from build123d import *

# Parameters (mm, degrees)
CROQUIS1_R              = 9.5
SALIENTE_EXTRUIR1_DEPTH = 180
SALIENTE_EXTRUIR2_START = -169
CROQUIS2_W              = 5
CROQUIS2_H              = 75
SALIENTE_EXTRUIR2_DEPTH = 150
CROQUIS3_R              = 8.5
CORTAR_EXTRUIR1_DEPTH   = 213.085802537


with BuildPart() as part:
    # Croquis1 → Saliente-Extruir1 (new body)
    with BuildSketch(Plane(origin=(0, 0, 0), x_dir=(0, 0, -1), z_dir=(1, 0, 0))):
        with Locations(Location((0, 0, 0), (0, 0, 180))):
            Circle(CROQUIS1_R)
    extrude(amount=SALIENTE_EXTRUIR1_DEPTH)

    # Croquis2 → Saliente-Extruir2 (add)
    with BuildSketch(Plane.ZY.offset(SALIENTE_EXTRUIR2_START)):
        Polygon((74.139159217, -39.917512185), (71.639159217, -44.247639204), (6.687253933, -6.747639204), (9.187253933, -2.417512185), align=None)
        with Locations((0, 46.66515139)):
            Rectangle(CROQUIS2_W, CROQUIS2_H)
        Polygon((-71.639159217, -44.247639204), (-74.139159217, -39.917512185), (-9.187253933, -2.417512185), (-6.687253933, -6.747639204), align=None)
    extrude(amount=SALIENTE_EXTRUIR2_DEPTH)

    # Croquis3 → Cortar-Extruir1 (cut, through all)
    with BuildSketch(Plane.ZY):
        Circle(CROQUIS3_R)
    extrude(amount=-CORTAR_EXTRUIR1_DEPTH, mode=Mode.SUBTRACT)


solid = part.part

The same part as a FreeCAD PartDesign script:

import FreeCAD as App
import Part
import Sketcher
Q = App.Units.Quantity

doc = App.newDocument("Part")
body = doc.addObject("PartDesign::Body", "Body")

sketch1 = doc.addObject("Sketcher::SketchObject", "Sketch")
body.addObject(sketch1)
sketch1.AttachmentSupport = (doc.YZ_Plane, [""])
sketch1.MapMode = "FlatFace"
sketch1.addGeometry(Part.Circle(App.Vector(0, 0, 0), App.Vector(0, 0, 1), 10), False)
sketch1.addConstraint([
    Sketcher.Constraint("Coincident", 0, 3, -1, 1),
    Sketcher.Constraint("Diameter", 0, Q("19 mm")),
])
pad1 = doc.addObject("PartDesign::Pad", "Pad")
body.addObject(pad1)
pad1.Profile = sketch1
pad1.Length = 180

sketch2 = doc.addObject("Sketcher::SketchObject", "Sketch001")
body.addObject(sketch2)
sketch2.AttachmentSupport = (doc.YZ_Plane, [""])
sketch2.MapMode = "FlatFace"
sketch2.AttachmentOffset = App.Placement(App.Vector(0, 0, 169), App.Rotation())
sketch2.addGeometry([
    Part.LineSegment(App.Vector(-44, 72, 0), App.Vector(-40, 74, 0)),
    Part.LineSegment(App.Vector(-40, 74, 0), App.Vector(-2, 9, 0)),
    Part.LineSegment(App.Vector(-2, 9, 0), App.Vector(-7, 7, 0)),
    Part.LineSegment(App.Vector(-7, 7, 0), App.Vector(-44, 72, 0)),
    Part.LineSegment(App.Vector(84, -2, 0), App.Vector(9, -2, 0)),
    Part.LineSegment(App.Vector(9, -2, 0), App.Vector(9, 2, 0)),
    Part.LineSegment(App.Vector(9, 2, 0), App.Vector(84, 2, 0)),
    Part.LineSegment(App.Vector(84, 2, 0), App.Vector(84, -2, 0)),
    Part.LineSegment(App.Vector(-40, -74, 0), App.Vector(-44, -72, 0)),
    Part.LineSegment(App.Vector(-44, -72, 0), App.Vector(-7, -7, 0)),
    Part.LineSegment(App.Vector(-7, -7, 0), App.Vector(-2, -9, 0)),
    Part.LineSegment(App.Vector(-2, -9, 0), App.Vector(-40, -74, 0)),
], False)
sketch2.addConstraint([
    Sketcher.Constraint("Coincident", 0, 2, 1, 1),
    Sketcher.Constraint("Coincident", 1, 2, 2, 1),
    Sketcher.Constraint("Coincident", 2, 2, 3, 1),
    Sketcher.Constraint("Coincident", 3, 2, 0, 1),
    Sketcher.Constraint("Coincident", 4, 2, 5, 1),
    Sketcher.Constraint("Coincident", 5, 2, 6, 1),
    Sketcher.Constraint("Coincident", 6, 2, 7, 1),
    Sketcher.Constraint("Coincident", 7, 2, 4, 1),
    Sketcher.Constraint("Coincident", 8, 2, 9, 1),
    Sketcher.Constraint("Coincident", 9, 2, 10, 1),
    Sketcher.Constraint("Coincident", 10, 2, 11, 1),
    Sketcher.Constraint("Coincident", 11, 2, 8, 1),
    Sketcher.Constraint("Horizontal", 4),
    Sketcher.Constraint("Vertical", 5),
    Sketcher.Constraint("Horizontal", 6),
    Sketcher.Constraint("Vertical", 7),
    Sketcher.Constraint("Symmetric", 3, 2, 8, 2, -1),
    Sketcher.Constraint("Symmetric", 2, 2, 9, 2, -1),
    Sketcher.Constraint("Symmetric", 1, 2, 10, 2, -1),
    Sketcher.Constraint("Symmetric", 0, 2, 11, 2, -1),
    Sketcher.Constraint("Perpendicular", 0, 1),
    Sketcher.Constraint("Perpendicular", 1, 2),
    Sketcher.Constraint("Perpendicular", 2, 3),
    Sketcher.Constraint("DistanceX", 4, 2, 4, 1, Q("75 mm")),
    Sketcher.Constraint("DistanceY", 5, 1, 5, 2, Q("5 mm")),
    Sketcher.Constraint("Angle", 0, Q("30 deg")),
    Sketcher.Constraint("Distance", 0, Q("5 mm")),
    Sketcher.Constraint("Distance", 1, Q("75 mm")),
    Sketcher.Constraint("DistanceY", 4, 2, -1, 1, Q("2.5 mm")),
    Sketcher.Constraint("DistanceY", -1, 1, 0, 2, Q("74.139159 mm")),
    Sketcher.Constraint("DistanceX", 2, 2, -1, 1, Q("6.747639 mm")),
    Sketcher.Constraint("DistanceX", -1, 1, 4, 2, Q("9.165151 mm")),
])
pad2 = doc.addObject("PartDesign::Pad", "Pad001")
body.addObject(pad2)
pad2.Profile = sketch2
pad2.Length = 150
pad2.Reversed = True

sketch3 = doc.addObject("Sketcher::SketchObject", "Sketch002")
body.addObject(sketch3)
sketch3.AttachmentSupport = (doc.YZ_Plane, [""])
sketch3.MapMode = "FlatFace"
sketch3.addGeometry(Part.Circle(App.Vector(0, 0, 0), App.Vector(0, 0, 1), 8), False)
sketch3.addConstraint([
    Sketcher.Constraint("Coincident", 0, 3, -1, 1),
    Sketcher.Constraint("Diameter", 0, Q("17 mm")),
])
pocket1 = doc.addObject("PartDesign::Pocket", "Pocket")
body.addObject(pocket1)
pocket1.Profile = sketch3
pocket1.Type = "ThroughAll"
pocket1.Reversed = True

doc.recompute()
